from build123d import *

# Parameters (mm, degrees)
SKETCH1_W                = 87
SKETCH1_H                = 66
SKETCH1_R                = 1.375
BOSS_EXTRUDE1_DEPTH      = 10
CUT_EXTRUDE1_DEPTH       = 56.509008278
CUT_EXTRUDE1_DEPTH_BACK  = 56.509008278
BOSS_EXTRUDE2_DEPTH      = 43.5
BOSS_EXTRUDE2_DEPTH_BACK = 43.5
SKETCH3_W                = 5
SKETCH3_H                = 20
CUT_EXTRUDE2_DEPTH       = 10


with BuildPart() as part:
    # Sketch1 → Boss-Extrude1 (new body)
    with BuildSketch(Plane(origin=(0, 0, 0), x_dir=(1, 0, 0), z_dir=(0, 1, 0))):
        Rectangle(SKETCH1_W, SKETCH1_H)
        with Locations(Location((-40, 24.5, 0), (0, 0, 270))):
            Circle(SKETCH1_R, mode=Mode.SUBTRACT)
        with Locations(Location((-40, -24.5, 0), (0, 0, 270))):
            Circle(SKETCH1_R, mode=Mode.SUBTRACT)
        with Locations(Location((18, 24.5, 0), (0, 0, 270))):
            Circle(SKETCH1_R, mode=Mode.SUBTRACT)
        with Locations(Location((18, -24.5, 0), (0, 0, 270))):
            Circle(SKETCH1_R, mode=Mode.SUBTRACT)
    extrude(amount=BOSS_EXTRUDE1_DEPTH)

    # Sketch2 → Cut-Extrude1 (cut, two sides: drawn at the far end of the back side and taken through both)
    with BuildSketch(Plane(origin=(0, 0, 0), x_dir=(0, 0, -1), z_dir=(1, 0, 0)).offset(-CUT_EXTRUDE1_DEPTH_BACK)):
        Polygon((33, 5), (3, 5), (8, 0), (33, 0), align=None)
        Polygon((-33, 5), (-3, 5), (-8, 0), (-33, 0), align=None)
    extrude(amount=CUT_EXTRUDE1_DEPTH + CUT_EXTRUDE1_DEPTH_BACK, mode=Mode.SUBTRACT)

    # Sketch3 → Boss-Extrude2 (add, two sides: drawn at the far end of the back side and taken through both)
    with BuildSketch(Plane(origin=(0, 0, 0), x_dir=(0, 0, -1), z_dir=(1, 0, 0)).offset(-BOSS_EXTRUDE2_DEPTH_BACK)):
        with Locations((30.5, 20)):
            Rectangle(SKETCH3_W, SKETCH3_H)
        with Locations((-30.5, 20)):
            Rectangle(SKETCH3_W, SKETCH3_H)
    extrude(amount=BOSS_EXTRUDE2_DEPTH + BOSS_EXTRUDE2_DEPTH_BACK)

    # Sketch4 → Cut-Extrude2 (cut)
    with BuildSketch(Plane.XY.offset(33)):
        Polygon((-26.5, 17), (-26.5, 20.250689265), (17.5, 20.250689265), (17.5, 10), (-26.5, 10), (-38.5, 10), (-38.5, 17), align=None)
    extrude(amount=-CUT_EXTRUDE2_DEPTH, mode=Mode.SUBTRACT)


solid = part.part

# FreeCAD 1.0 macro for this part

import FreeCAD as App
import Part
import Sketcher
from FreeCAD import Vector
Q = App.Units.Quantity

doc = App.newDocument("Part")
body = doc.addObject("PartDesign::Body", "Body")

# Sketch on XZ plane
sketch1 = body.newObject("Sketcher::SketchObject", "Sketch")
sketch1.AttachmentSupport = (doc.getObject("XZ_Plane"), [""])
sketch1.MapMode = "FlatFace"
sketch1.addGeometry(Part.LineSegment(Vector(-43.5, -33, 0), Vector(-43.5, 33, 0)), False)
sketch1.addGeometry(Part.LineSegment(Vector(-43.5, 33, 0), Vector(43.5, 33, 0)), False)
sketch1.addGeometry(Part.LineSegment(Vector(43.5, 33, 0), Vector(43.5, -33, 0)), False)
sketch1.addGeometry(Part.LineSegment(Vector(43.5, -33, 0), Vector(-43.5, -33, 0)), False)
sketch1.addGeometry(Part.Circle(Vector(-40, 24.5, 0), Vector(0, 0, 1), 1.375), False)
sketch1.addGeometry(Part.Circle(Vector(18, 24.5, 0), Vector(0, 0, 1), 1.375), False)
sketch1.addGeometry(Part.Circle(Vector(-40, -24.5, 0), Vector(0, 0, 1), 1.375), False)
sketch1.addGeometry(Part.Circle(Vector(18, -24.5, 0), Vector(0, 0, 1), 1.375), False)
sketch1.addConstraint(Sketcher.Constraint("Coincident", 0, 2, 1, 1))
sketch1.addConstraint(Sketcher.Constraint("Coincident", 1, 2, 2, 1))
sketch1.addConstraint(Sketcher.Constraint("Coincident", 2, 2, 3, 1))
sketch1.addConstraint(Sketcher.Constraint("Coincident", 3, 2, 0, 1))
sketch1.addConstraint(Sketcher.Constraint("Vertical", 0))
sketch1.addConstraint(Sketcher.Constraint("Horizontal", 1))
sketch1.addConstraint(Sketcher.Constraint("Vertical", 2))
sketch1.addConstraint(Sketcher.Constraint("Horizontal", 3))
sketch1.addConstraint(Sketcher.Constraint("Equal", 4, 5))
sketch1.addConstraint(Sketcher.Constraint("Equal", 5, 6))
sketch1.addConstraint(Sketcher.Constraint("Equal", 6, 7))
sketch1.addConstraint(Sketcher.Constraint("Symmetric", 0, 2, 2, 2, -1, 1))
sketch1.addConstraint(Sketcher.Constraint("Symmetric", 4, 3, 6, 3, -1))
sketch1.addConstraint(Sketcher.Constraint("Symmetric", 5, 3, 7, 3, -1))
sketch1.addConstraint(Sketcher.Constraint("Horizontal", 4, 3, 5, 3))
sketch1.addConstraint(Sketcher.Constraint("Diameter", 4, Q("2.75 mm")))
sketch1.addConstraint(Sketcher.Constraint("DistanceX", 1, 1, 1, 2, Q("87 mm")))
sketch1.addConstraint(Sketcher.Constraint("DistanceY", 0, 1, 0, 2, Q("66 mm")))
sketch1.addConstraint(Sketcher.Constraint("DistanceX", 4, 3, -1, 1, Q("40 mm")))
sketch1.addConstraint(Sketcher.Constraint("DistanceX", -1, 1, 5, 3, Q("18 mm")))
sketch1.addConstraint(Sketcher.Constraint("DistanceY", 6, 3, 4, 3, Q("49 mm")))
pad1 = body.newObject("PartDesign::Pad", "Pad")
pad1.Profile = sketch1
pad1.Length = 10
pad1.Reversed = True

# Sketch on YZ plane
sketch2 = body.newObject("Sketcher::SketchObject", "Sketch001")
sketch2.AttachmentSupport = (doc.getObject("YZ_Plane"), [""])
sketch2.MapMode = "FlatFace"
sketch2.addGeometry(Part.LineSegment(Vector(5, -33, 0), Vector(5, -3, 0)), False)
sketch2.addGeometry(Part.LineSegment(Vector(5, -3, 0), Vector(0, -8, 0)), False)
sketch2.addGeometry(Part.LineSegment(Vector(0, -8, 0), Vector(0, -33, 0)), False)
sketch2.addGeometry(Part.LineSegment(Vector(0, -33, 0), Vector(5, -33, 0)), False)
sketch2.addGeometry(Part.LineSegment(Vector(5, 3, 0), Vector(5, 33, 0)), False)
sketch2.addGeometry(Part.LineSegment(Vector(5, 33, 0), Vector(0, 33, 0)), False)
sketch2.addGeometry(Part.LineSegment(Vector(0, 33, 0), Vector(0, 8, 0)), False)
sketch2.addGeometry(Part.LineSegment(Vector(0, 8, 0), Vector(5, 3, 0)), False)
sketch2.addConstraint(Sketcher.Constraint("Coincident", 0, 2, 1, 1))
sketch2.addConstraint(Sketcher.Constraint("Coincident", 1, 2, 2, 1))
sketch2.addConstraint(Sketcher.Constraint("Coincident", 2, 2, 3, 1))
sketch2.addConstraint(Sketcher.Constraint("Coincident", 3, 2, 0, 1))
sketch2.addConstraint(Sketcher.Constraint("Coincident", 4, 2, 5, 1))
sketch2.addConstraint(Sketcher.Constraint("Coincident", 5, 2, 6, 1))
sketch2.addConstraint(Sketcher.Constraint("Coincident", 6, 2, 7, 1))
sketch2.addConstraint(Sketcher.Constraint("Coincident", 7, 2, 4, 1))
sketch2.addConstraint(Sketcher.Constraint("Vertical", 0))
sketch2.addConstraint(Sketcher.Constraint("Vertical", 2))
sketch2.addConstraint(Sketcher.Constraint("Horizontal", 3))
sketch2.addConstraint(Sketcher.Constraint("Vertical", 4))
sketch2.addConstraint(Sketcher.Constraint("Horizontal", 5))
sketch2.addConstraint(Sketcher.Constraint("Vertical", 6))
sketch2.addConstraint(Sketcher.Constraint("Symmetric", 2, 2, 5, 2, -1, 1))
sketch2.addConstraint(Sketcher.Constraint("Symmetric", 1, 2, 6, 2, -1))
sketch2.addConstraint(Sketcher.Constraint("Symmetric", 0, 2, 7, 2, -1))
sketch2.addConstraint(Sketcher.Constraint("Perpendicular", 1, 7))
sketch2.addConstraint(Sketcher.Constraint("DistanceX", 3, 1, 3, 2, Q("5 mm")))
sketch2.addConstraint(Sketcher.Constraint("DistanceY", 0, 1, 0, 2, Q("30 mm")))
sketch2.addConstraint(Sketcher.Constraint("DistanceY", 0, 2, -1, 1, Q("3 mm")))
pocket1 = body.newObject("PartDesign::Pocket", "Pocket")
pocket1.Profile = sketch2
pocket1.Type = "ThroughAll"
pocket1.Midplane = True

# Sketch on YZ plane
sketch3 = body.newObject("Sketcher::SketchObject", "Sketch002")
sketch3.AttachmentSupport = (doc.getObject("YZ_Plane"), [""])
sketch3.MapMode = "FlatFace"
sketch3.addGeometry(Part.LineSegment(Vector(30, -28, 0), Vector(10, -28, 0)), False)
sketch3.addGeometry(Part.LineSegment(Vector(10, -28, 0), Vector(10, -33, 0)), False)
sketch3.addGeometry(Part.LineSegment(Vector(10, -33, 0), Vector(30, -33, 0)), False)
sketch3.addGeometry(Part.LineSegment(Vector(30, -33, 0), Vector(30, -28, 0)), False)
sketch3.addGeometry(Part.LineSegment(Vector(30, 33, 0), Vector(10, 33, 0)), False)
sketch3.addGeometry(Part.LineSegment(Vector(10, 33, 0), Vector(10, 28, 0)), False)
sketch3.addGeometry(Part.LineSegment(Vector(10, 28, 0), Vector(30, 28, 0)), False)
sketch3.addGeometry(Part.LineSegment(Vector(30, 28, 0), Vector(30, 33, 0)), False)
sketch3.addConstraint(Sketcher.Constraint("Coincident", 0, 2, 1, 1))
sketch3.addConstraint(Sketcher.Constraint("Coincident", 1, 2, 2, 1))
sketch3.addConstraint(Sketcher.Constraint("Coincident", 2, 2, 3, 1))
sketch3.addConstraint(Sketcher.Constraint("Coincident", 3, 2, 0, 1))
sketch3.addConstraint(Sketcher.Constraint("Coincident", 4, 2, 5, 1))
sketch3.addConstraint(Sketcher.Constraint("Coincident", 5, 2, 6, 1))
sketch3.addConstraint(Sketcher.Constraint("Coincident", 6, 2, 7, 1))
sketch3.addConstraint(Sketcher.Constraint("Coincident", 7, 2, 4, 1))
sketch3.addConstraint(Sketcher.Constraint("Horizontal", 0))
sketch3.addConstraint(Sketcher.Constraint("Vertical", 1))
sketch3.addConstraint(Sketcher.Constraint("Horizontal", 2))
sketch3.addConstraint(Sketcher.Constraint("Vertical", 3))
sketch3.addConstraint(Sketcher.Constraint("Horizontal", 4))
sketch3.addConstraint(Sketcher.Constraint("Vertical", 5))
sketch3.addConstraint(Sketcher.Constraint("Horizontal", 6))
sketch3.addConstraint(Sketcher.Constraint("Vertical", 7))
sketch3.addConstraint(Sketcher.Constraint("Symmetric", 1, 2, 4, 2, -1))
sketch3.addConstraint(Sketcher.Constraint("Symmetric", 3, 2, 6, 2, -1))
sketch3.addConstraint(Sketcher.Constraint("DistanceX", 0, 2, 0, 1, Q("20 mm")))
sketch3.addConstraint(Sketcher.Constraint("DistanceY", 1, 2, 1, 1, Q("5 mm")))
sketch3.addConstraint(Sketcher.Constraint("DistanceX", -1, 1, 0, 2, Q("10 mm")))
sketch3.addConstraint(Sketcher.Constraint("DistanceY", 0, 2, -1, 1, Q("28 mm")))
pad2 = body.newObject("PartDesign::Pad", "Pad001")
pad2.Profile = sketch3
pad2.Type = "TwoLengths"
pad2.Length = 43.5
pad2.Length2 = 43.5

# Sketch on XY plane
sketch4 = body.newObject("Sketcher::SketchObject", "Sketch003")
sketch4.AttachmentSupport = (doc.getObject("XY_Plane"), [""])
sketch4.MapMode = "FlatFace"
sketch4.AttachmentOffset = App.Placement(Vector(0, 0, 33), App.Rotation())
sketch4.addGeometry(Part.LineSegment(Vector(-26.5, 20.250689, 0), Vector(-26.5, 17, 0)), False)
sketch4.addGeometry(Part.LineSegment(Vector(-26.5, 17, 0), Vector(-38.5, 17, 0)), False)
sketch4.addGeometry(Part.LineSegment(Vector(-38.5, 17, 0), Vector(-38.5, 10, 0)), False)
sketch4.addGeometry(Part.LineSegment(Vector(-38.5, 10, 0), Vector(17.5, 10, 0)), False)
sketch4.addGeometry(Part.LineSegment(Vector(17.5, 10, 0), Vector(17.5, 20.250689, 0)), False)
sketch4.addGeometry(Part.LineSegment(Vector(17.5, 20.250689, 0), Vector(-26.5, 20.250689, 0)), False)
sketch4.addConstraint(Sketcher.Constraint("Coincident", 0, 2, 1, 1))
sketch4.addConstraint(Sketcher.Constraint("Coincident", 1, 2, 2, 1))
sketch4.addConstraint(Sketcher.Constraint("Coincident", 2, 2, 3, 1))
sketch4.addConstraint(Sketcher.Constraint("Coincident", 3, 2, 4, 1))
sketch4.addConstraint(Sketcher.Constraint("Coincident", 4, 2, 5, 1))
sketch4.addConstraint(Sketcher.Constraint("Coincident", 5, 2, 0, 1))
sketch4.addConstraint(Sketcher.Constraint("Vertical", 0))
sketch4.addConstraint(Sketcher.Constraint("Horizontal", 1))
sketch4.addConstraint(Sketcher.Constraint("Vertical", 2))
sketch4.addConstraint(Sketcher.Constraint("Horizontal", 3))
sketch4.addConstraint(Sketcher.Constraint("Vertical", 4))
sketch4.addConstraint(Sketcher.Constraint("Horizontal", 5))
sketch4.addConstraint(Sketcher.Constraint("DistanceX", 1, 2, 1, 1, Q("12 mm")))
sketch4.addConstraint(Sketcher.Constraint("DistanceX", 3, 1, 3, 2, Q("56 mm")))
sketch4.addConstraint(Sketcher.Constraint("DistanceY", 2, 2, 2, 1, Q("7 mm")))
sketch4.addConstraint(Sketcher.Constraint("DistanceY", -1, 1, 0, 2, Q("17 mm")))
sketch4.addConstraint(Sketcher.Constraint("DistanceX", 0, 2, -1, 1, Q("26.5 mm")))
sketch4.addConstraint(Sketcher.Constraint("DistanceY", 0, 2, 0, 1, Q("3.250689 mm")))
pocket2 = body.newObject("PartDesign::Pocket", "Pocket001")
pocket2.Profile = sketch4
pocket2.Length = 10

doc.recompute()
